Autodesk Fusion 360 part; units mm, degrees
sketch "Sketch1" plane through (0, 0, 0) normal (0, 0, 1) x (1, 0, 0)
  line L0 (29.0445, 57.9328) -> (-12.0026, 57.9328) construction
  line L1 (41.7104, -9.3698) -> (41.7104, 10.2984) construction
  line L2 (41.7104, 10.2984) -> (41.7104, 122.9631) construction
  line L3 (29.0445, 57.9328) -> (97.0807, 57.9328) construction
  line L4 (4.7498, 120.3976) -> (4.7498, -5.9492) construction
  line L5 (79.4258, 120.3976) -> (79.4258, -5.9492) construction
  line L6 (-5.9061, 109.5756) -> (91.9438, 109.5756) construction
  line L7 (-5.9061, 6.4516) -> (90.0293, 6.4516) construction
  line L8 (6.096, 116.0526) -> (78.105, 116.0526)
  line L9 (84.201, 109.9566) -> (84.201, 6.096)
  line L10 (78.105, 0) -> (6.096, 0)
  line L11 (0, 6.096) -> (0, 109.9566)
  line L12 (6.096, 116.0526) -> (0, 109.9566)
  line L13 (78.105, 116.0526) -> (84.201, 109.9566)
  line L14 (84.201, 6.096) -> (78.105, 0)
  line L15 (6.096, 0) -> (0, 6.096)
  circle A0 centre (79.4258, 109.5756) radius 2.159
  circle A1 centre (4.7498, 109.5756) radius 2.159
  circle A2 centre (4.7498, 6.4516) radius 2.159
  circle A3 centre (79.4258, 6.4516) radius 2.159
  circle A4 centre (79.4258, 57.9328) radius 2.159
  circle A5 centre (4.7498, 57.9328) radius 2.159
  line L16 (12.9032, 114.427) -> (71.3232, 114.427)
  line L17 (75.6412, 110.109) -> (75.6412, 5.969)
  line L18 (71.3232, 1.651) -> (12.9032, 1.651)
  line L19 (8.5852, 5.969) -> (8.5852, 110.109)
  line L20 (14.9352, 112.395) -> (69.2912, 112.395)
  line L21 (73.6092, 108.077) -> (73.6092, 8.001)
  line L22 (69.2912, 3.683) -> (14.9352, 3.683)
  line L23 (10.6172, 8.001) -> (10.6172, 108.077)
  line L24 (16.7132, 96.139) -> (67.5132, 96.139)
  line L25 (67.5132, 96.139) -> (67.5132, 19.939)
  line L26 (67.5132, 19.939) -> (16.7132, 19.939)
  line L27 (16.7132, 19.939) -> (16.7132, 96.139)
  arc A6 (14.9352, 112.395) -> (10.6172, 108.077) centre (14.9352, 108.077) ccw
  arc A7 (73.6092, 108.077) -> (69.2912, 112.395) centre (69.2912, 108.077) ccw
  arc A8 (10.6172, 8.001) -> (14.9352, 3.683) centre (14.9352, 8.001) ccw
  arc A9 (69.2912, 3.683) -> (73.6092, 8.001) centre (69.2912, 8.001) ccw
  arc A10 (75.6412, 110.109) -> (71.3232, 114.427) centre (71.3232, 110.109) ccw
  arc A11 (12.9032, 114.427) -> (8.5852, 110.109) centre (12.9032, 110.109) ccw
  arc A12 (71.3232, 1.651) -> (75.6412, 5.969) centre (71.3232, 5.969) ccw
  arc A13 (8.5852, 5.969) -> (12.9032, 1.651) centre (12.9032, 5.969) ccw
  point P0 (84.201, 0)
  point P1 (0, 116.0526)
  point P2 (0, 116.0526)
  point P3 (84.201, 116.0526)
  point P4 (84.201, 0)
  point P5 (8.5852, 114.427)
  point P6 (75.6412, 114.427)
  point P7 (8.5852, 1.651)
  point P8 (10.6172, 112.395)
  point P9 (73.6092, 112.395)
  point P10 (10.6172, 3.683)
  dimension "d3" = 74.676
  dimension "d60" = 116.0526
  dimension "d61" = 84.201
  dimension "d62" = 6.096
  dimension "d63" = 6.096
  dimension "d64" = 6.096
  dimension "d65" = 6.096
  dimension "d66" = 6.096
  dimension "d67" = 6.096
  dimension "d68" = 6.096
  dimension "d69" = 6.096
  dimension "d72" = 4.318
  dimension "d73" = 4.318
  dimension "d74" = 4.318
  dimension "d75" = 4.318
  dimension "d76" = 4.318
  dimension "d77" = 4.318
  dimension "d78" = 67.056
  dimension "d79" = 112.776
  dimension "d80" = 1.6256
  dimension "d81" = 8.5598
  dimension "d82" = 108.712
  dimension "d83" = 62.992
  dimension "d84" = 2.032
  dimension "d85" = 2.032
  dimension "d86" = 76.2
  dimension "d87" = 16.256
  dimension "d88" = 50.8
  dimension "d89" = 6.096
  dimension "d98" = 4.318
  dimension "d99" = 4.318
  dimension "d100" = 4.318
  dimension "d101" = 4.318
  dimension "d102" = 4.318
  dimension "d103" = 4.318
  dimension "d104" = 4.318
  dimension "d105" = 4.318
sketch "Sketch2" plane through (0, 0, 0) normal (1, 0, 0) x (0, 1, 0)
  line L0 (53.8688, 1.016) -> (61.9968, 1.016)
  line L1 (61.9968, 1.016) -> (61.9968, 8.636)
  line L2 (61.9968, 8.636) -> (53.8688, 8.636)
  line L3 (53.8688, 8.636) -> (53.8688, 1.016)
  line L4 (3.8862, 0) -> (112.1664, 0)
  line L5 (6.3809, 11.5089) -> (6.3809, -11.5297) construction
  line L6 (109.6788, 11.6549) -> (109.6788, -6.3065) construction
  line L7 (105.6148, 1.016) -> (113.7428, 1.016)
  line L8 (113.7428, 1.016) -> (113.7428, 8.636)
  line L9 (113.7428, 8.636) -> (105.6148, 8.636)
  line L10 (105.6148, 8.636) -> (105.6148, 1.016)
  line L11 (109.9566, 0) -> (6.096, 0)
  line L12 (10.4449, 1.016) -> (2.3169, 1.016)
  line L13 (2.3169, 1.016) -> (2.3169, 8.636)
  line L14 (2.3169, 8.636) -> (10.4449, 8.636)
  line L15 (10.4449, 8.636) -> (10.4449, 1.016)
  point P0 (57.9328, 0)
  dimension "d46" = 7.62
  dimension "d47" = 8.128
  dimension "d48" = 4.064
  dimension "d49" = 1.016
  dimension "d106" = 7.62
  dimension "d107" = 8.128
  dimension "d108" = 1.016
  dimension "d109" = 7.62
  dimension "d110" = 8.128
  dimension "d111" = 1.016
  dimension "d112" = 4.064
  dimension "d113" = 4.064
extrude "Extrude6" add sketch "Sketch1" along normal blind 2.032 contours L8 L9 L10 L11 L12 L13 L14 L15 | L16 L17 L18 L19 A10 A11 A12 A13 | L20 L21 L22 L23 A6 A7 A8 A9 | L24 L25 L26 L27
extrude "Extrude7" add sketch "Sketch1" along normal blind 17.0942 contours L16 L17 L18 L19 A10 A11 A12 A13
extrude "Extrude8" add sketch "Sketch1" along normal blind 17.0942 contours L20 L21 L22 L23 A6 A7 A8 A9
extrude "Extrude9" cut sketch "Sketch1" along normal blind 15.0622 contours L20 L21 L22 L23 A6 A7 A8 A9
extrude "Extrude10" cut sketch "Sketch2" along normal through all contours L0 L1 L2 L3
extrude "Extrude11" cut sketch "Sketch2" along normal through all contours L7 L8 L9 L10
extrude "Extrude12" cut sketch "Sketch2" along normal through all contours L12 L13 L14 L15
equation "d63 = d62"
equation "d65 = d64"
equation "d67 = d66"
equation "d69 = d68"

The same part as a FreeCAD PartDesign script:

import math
import FreeCAD as App
import Part
import Sketcher

V = App.Vector
Q = App.Units.Quantity


def add_polygon(sketch, points):
    """Adds a closed chain of lines whose ends are joined by coincident constraints."""
    first, n = sketch.GeometryCount, len(points)
    for a, b in zip(points, points[1:] + points[:1]):
        sketch.addGeometry(Part.LineSegment(App.Vector(*a, 0), App.Vector(*b, 0)), False)
    for i in range(n):
        sketch.addConstraint(Sketcher.Constraint("Coincident", first + i, 2, first + (i + 1) % n, 1))

doc = App.newDocument("Part")
body = doc.addObject("PartDesign::Body", "Body")
body.AllowCompound = True

# Sketch on XY plane
sketch1 = body.newObject("Sketcher::SketchObject", "Sketch")
sketch1.AttachmentSupport = (doc.getObject("XY_Plane"), [""])
sketch1.MapMode = "FlatFace"
add_polygon(sketch1, [(78.105, 116.0526), (6.096, 116.0526), (0, 109.9566), (0, 6.096), (6.096, 0), (78.105, 0), (84.201, 6.096), (84.201, 109.9566)])  # lines 0-7
sketch1.addGeometry(Part.Circle(V(4.7498, 6.4516, 0), V(0, 0, 1), 2.159), False)  # 8
sketch1.addGeometry(Part.Circle(V(4.7498, 57.9328, 0), V(0, 0, 1), 2.159), False)  # 9
sketch1.addGeometry(Part.Circle(V(79.4258, 6.4516, 0), V(0, 0, 1), 2.159), False)  # 10
sketch1.addGeometry(Part.Circle(V(79.4258, 57.9328, 0), V(0, 0, 1), 2.159), False)  # 11
sketch1.addGeometry(Part.Circle(V(4.7498, 109.5756, 0), V(0, 0, 1), 2.159), False)  # 12
sketch1.addGeometry(Part.Circle(V(79.4258, 109.5756, 0), V(0, 0, 1), 2.159), False)  # 13
sketch1.addConstraint([
    Sketcher.Constraint("Horizontal", 0),
    Sketcher.Constraint("Vertical", 2),
    Sketcher.Constraint("Horizontal", 4),
    Sketcher.Constraint("Vertical", 6),
    Sketcher.Constraint("Equal", 8, 9),
    Sketcher.Constraint("Equal", 9, 10),
    Sketcher.Constraint("Equal", 10, 11),
    Sketcher.Constraint("Equal", 11, 12),
    Sketcher.Constraint("Equal", 12, 13),
    Sketcher.Constraint("PointOnObject", 1, 2, -2),
    Sketcher.Constraint("PointOnObject", 3, 2, -1),
    Sketcher.Constraint("Perpendicular", 1, 3),
    Sketcher.Constraint("Perpendicular", 3, 5),
    Sketcher.Constraint("Perpendicular", 5, 7),
    Sketcher.Constraint("Horizontal", 8, 3, 10, 3),
    Sketcher.Constraint("Horizontal", 9, 3, 11, 3),
    Sketcher.Constraint("Horizontal", 12, 3, 13, 3),
    Sketcher.Constraint("Horizontal", 2, 2, 5, 2),
    Sketcher.Constraint("Horizontal", 1, 2, 6, 2),
    Sketcher.Constraint("Vertical", 8, 3, 9, 3),
    Sketcher.Constraint("Vertical", 10, 3, 11, 3),
    Sketcher.Constraint("Vertical", 9, 3, 12, 3),
    Sketcher.Constraint("Vertical", 11, 3, 13, 3),
    Sketcher.Constraint("Vertical", 0, 2, 3, 2),
    Sketcher.Constraint("Vertical", 4, 2, 7, 2),
    Sketcher.Constraint("Diameter", 8, Q("0.17 in")),
    Sketcher.Constraint("DistanceX", -1, 1, 0, 2, Q("0.24 in")),
    Sketcher.Constraint("DistanceX", 8, 3, 10, 3, Q("2.94 in")),
    Sketcher.Constraint("DistanceY", -1, 1, 0, 2, Q("4.569 in")),
    Sketcher.Constraint("DistanceX", -1, 1, 5, 2, Q("3.315 in")),
    Sketcher.Constraint("DistanceY", 8, 3, 12, 3, Q("4.06 in")),
    Sketcher.Constraint("DistanceX", -1, 1, 8, 3, Q("0.187 in")),
    Sketcher.Constraint("DistanceY", -1, 1, 8, 3, Q("0.254 in")),
    Sketcher.Constraint("DistanceY", -1, 1, 9, 3, Q("57.9328 mm")),
])
pad1 = body.newObject("PartDesign::Pad", "Pad")
pad1.Profile = sketch1
pad1.Length = Q("0.08 in")

# Sketch on XY plane
sketch2 = body.newObject("Sketcher::SketchObject", "Sketch001")
sketch2.AttachmentSupport = (doc.getObject("XY_Plane"), [""])
sketch2.MapMode = "FlatFace"
sketch2.addGeometry([
    Part.LineSegment(V(71.3232, 114.427, 0), V(12.9032, 114.427, 0)),  # 0
    Part.ArcOfCircle(Part.Circle(V(12.9032, 110.109, 0), V(0, 0, 1), 4.318), math.radians(90), math.radians(180)),  # 1
    Part.LineSegment(V(8.5852, 110.109, 0), V(8.5852, 5.969, 0)),  # 2
    Part.ArcOfCircle(Part.Circle(V(12.9032, 5.969, 0), V(0, 0, 1), 4.318), math.radians(180), math.radians(270)),  # 3
    Part.LineSegment(V(12.9032, 1.651, 0), V(71.3232, 1.651, 0)),  # 4
    Part.ArcOfCircle(Part.Circle(V(71.3232, 5.969, 0), V(0, 0, 1), 4.318), math.radians(-90), math.radians(0)),  # 5
    Part.LineSegment(V(75.6412, 5.969, 0), V(75.6412, 110.109, 0)),  # 6
    Part.ArcOfCircle(Part.Circle(V(71.3232, 110.109, 0), V(0, 0, 1), 4.318), math.radians(0), math.radians(90)),  # 7
    Part.ArcOfCircle(Part.Circle(V(14.9352, 108.077, 0), V(0, 0, 1), 4.318), math.radians(90), math.radians(180)),  # 8
    Part.LineSegment(V(14.9352, 112.395, 0), V(69.2912, 112.395, 0)),  # 9
    Part.ArcOfCircle(Part.Circle(V(69.2912, 108.077, 0), V(0, 0, 1), 4.318), math.radians(0), math.radians(90)),  # 10
    Part.LineSegment(V(73.6092, 108.077, 0), V(73.6092, 8.001, 0)),  # 11
    Part.ArcOfCircle(Part.Circle(V(69.2912, 8.001, 0), V(0, 0, 1), 4.318), math.radians(-90), math.radians(0)),  # 12
    Part.LineSegment(V(69.2912, 3.683, 0), V(14.9352, 3.683, 0)),  # 13
    Part.ArcOfCircle(Part.Circle(V(14.9352, 8.001, 0), V(0, 0, 1), 4.318), math.radians(180), math.radians(270)),  # 14
    Part.LineSegment(V(10.6172, 8.001, 0), V(10.6172, 108.077, 0)),  # 15
], False)
sketch2.addConstraint([
    Sketcher.Constraint("Tangent", 0, 2, 1, 1),
    Sketcher.Constraint("Tangent", 1, 2, 2, 1),
    Sketcher.Constraint("Tangent", 2, 2, 3, 1),
    Sketcher.Constraint("Tangent", 3, 2, 4, 1),
    Sketcher.Constraint("Tangent", 4, 2, 5, 1),
    Sketcher.Constraint("Tangent", 5, 2, 6, 1),
    Sketcher.Constraint("Tangent", 6, 2, 7, 1),
    Sketcher.Constraint("Tangent", 7, 2, 0, 1),
    Sketcher.Constraint("Tangent", 8, 1, 9, 1),
    Sketcher.Constraint("Tangent", 9, 2, 10, 2),
    Sketcher.Constraint("Tangent", 10, 1, 11, 1),
    Sketcher.Constraint("Tangent", 11, 2, 12, 2),
    Sketcher.Constraint("Tangent", 12, 1, 13, 1),
    Sketcher.Constraint("Tangent", 13, 2, 14, 2),
    Sketcher.Constraint("Tangent", 14, 1, 15, 1),
    Sketcher.Constraint("Tangent", 15, 2, 8, 2),
    Sketcher.Constraint("Horizontal", 0),
    Sketcher.Constraint("Vertical", 2),
    Sketcher.Constraint("Horizontal", 4),
    Sketcher.Constraint("Vertical", 6),
    Sketcher.Constraint("Horizontal", 9),
    Sketcher.Constraint("Vertical", 11),
    Sketcher.Constraint("Horizontal", 13),
    Sketcher.Constraint("Vertical", 15),
    Sketcher.Constraint("Equal", 1, 3),
    Sketcher.Constraint("Equal", 3, 5),
    Sketcher.Constraint("Equal", 5, 7),
    Sketcher.Constraint("Equal", 7, 8),
    Sketcher.Constraint("Equal", 8, 10),
    Sketcher.Constraint("Equal", 10, 12),
    Sketcher.Constraint("Equal", 12, 14),
    Sketcher.Constraint("Radius", 1, Q("0.17 in")),
    Sketcher.Constraint("DistanceX", 1, 3, 8, 3, Q("0.08 in")),
    Sketcher.Constraint("DistanceY", 8, 3, 1, 3, Q("0.08 in")),
    Sketcher.Constraint("DistanceX", 10, 3, 7, 3, Q("0.08 in")),
    Sketcher.Constraint("DistanceY", 5, 3, 12, 3, Q("0.08 in")),
    Sketcher.Constraint("DistanceX", 0, 2, 0, 1, Q("2.3 in")),
    Sketcher.Constraint("DistanceY", 2, 2, 2, 1, Q("4.1 in")),
    Sketcher.Constraint("DistanceX", -1, 1, 1, 3, Q("0.508 in")),
    Sketcher.Constraint("DistanceY", -1, 1, 1, 3, Q("4.335 in")),
])
pad2 = body.newObject("PartDesign::Pad", "Pad001")
pad2.Profile = sketch2
pad2.Length = Q("0.673 in")

# Sketch on XY plane
sketch3 = body.newObject("Sketcher::SketchObject", "Sketch002")
sketch3.AttachmentSupport = (doc.getObject("XY_Plane"), [""])
sketch3.MapMode = "FlatFace"
sketch3.addGeometry(Part.LineSegment(V(69.2912, 112.395, 0), V(14.9352, 112.395, 0)), False)  # 0
sketch3.addGeometry(Part.ArcOfCircle(Part.Circle(V(14.9352, 108.077, 0), V(0, 0, 1), 4.318), math.radians(90), math.radians(180)), False)  # 1
sketch3.addGeometry(Part.LineSegment(V(10.6172, 108.077, 0), V(10.6172, 8.001, 0)), False)  # 2
sketch3.addGeometry(Part.ArcOfCircle(Part.Circle(V(14.9352, 8.001, 0), V(0, 0, 1), 4.318), math.radians(180), math.radians(270)), False)  # 3
sketch3.addGeometry(Part.LineSegment(V(14.9352, 3.683, 0), V(69.2912, 3.683, 0)), False)  # 4
sketch3.addGeometry(Part.ArcOfCircle(Part.Circle(V(69.2912, 8.001, 0), V(0, 0, 1), 4.318), math.radians(-90), math.radians(0)), False)  # 5
sketch3.addGeometry(Part.LineSegment(V(73.6092, 8.001, 0), V(73.6092, 108.077, 0)), False)  # 6
sketch3.addGeometry(Part.ArcOfCircle(Part.Circle(V(69.2912, 108.077, 0), V(0, 0, 1), 4.318), math.radians(0), math.radians(90)), False)  # 7
add_polygon(sketch3, [(16.7132, 19.939), (16.7132, 96.139), (67.5132, 96.139), (67.5132, 19.939)])  # lines 8-11
sketch3.addConstraint([
    Sketcher.Constraint("Tangent", 0, 2, 1, 1),
    Sketcher.Constraint("Tangent", 1, 2, 2, 1),
    Sketcher.Constraint("Tangent", 2, 2, 3, 1),
    Sketcher.Constraint("Tangent", 3, 2, 4, 1),
    Sketcher.Constraint("Tangent", 4, 2, 5, 1),
    Sketcher.Constraint("Tangent", 5, 2, 6, 1),
    Sketcher.Constraint("Tangent", 6, 2, 7, 1),
    Sketcher.Constraint("Tangent", 7, 2, 0, 1),
    Sketcher.Constraint("Horizontal", 0),
    Sketcher.Constraint("Vertical", 2),
    Sketcher.Constraint("Horizontal", 4),
    Sketcher.Constraint("Vertical", 6),
    Sketcher.Constraint("Vertical", 8),
    Sketcher.Constraint("Horizontal", 9),
    Sketcher.Constraint("Vertical", 10),
    Sketcher.Constraint("Horizontal", 11),
    Sketcher.Constraint("Equal", 1, 3),
    Sketcher.Constraint("Equal", 3, 5),
    Sketcher.Constraint("Equal", 5, 7),
    Sketcher.Constraint("DistanceX", 9, 1, 9, 2, Q("2 in")),
    Sketcher.Constraint("DistanceY", 8, 1, 8, 2, Q("3 in")),
    Sketcher.Constraint("Radius", 1, Q("0.17 in")),
    Sketcher.Constraint("DistanceX", 2, 2, 5, 2, Q("2.48 in")),
    Sketcher.Constraint("DistanceX", 1, 2, 8, 2, Q("0.24 in")),
    Sketcher.Constraint("DistanceY", 8, 2, 0, 2, Q("0.64 in")),
    Sketcher.Constraint("DistanceY", 4, 2, 10, 2, Q("0.64 in")),
    Sketcher.Constraint("DistanceX", -1, 1, 1, 3, Q("0.588 in")),
    Sketcher.Constraint("DistanceY", -1, 1, 1, 3, Q("4.255 in")),
])
pad3 = body.newObject("PartDesign::Pad", "Pad002")
pad3.Profile = sketch3
pad3.Length = Q("0.673 in")

# Sketch on XY plane
sketch4 = body.newObject("Sketcher::SketchObject", "Sketch003")
sketch4.AttachmentSupport = (doc.getObject("XY_Plane"), [""])
sketch4.MapMode = "FlatFace"
sketch4.addGeometry(Part.LineSegment(V(69.2912, 112.395, 0), V(14.9352, 112.395, 0)), False)  # 0
sketch4.addGeometry(Part.ArcOfCircle(Part.Circle(V(14.9352, 108.077, 0), V(0, 0, 1), 4.318), math.radians(90), math.radians(180)), False)  # 1
sketch4.addGeometry(Part.LineSegment(V(10.6172, 108.077, 0), V(10.6172, 8.001, 0)), False)  # 2
sketch4.addGeometry(Part.ArcOfCircle(Part.Circle(V(14.9352, 8.001, 0), V(0, 0, 1), 4.318), math.radians(180), math.radians(270)), False)  # 3
sketch4.addGeometry(Part.LineSegment(V(14.9352, 3.683, 0), V(69.2912, 3.683, 0)), False)  # 4
sketch4.addGeometry(Part.ArcOfCircle(Part.Circle(V(69.2912, 8.001, 0), V(0, 0, 1), 4.318), math.radians(-90), math.radians(0)), False)  # 5
sketch4.addGeometry(Part.LineSegment(V(73.6092, 8.001, 0), V(73.6092, 108.077, 0)), False)  # 6
sketch4.addGeometry(Part.ArcOfCircle(Part.Circle(V(69.2912, 108.077, 0), V(0, 0, 1), 4.318), math.radians(0), math.radians(90)), False)  # 7
add_polygon(sketch4, [(16.7132, 19.939), (16.7132, 96.139), (67.5132, 96.139), (67.5132, 19.939)])  # lines 8-11
sketch4.addConstraint([
    Sketcher.Constraint("Tangent", 0, 2, 1, 1),
    Sketcher.Constraint("Tangent", 1, 2, 2, 1),
    Sketcher.Constraint("Tangent", 2, 2, 3, 1),
    Sketcher.Constraint("Tangent", 3, 2, 4, 1),
    Sketcher.Constraint("Tangent", 4, 2, 5, 1),
    Sketcher.Constraint("Tangent", 5, 2, 6, 1),
    Sketcher.Constraint("Tangent", 6, 2, 7, 1),
    Sketcher.Constraint("Tangent", 7, 2, 0, 1),
    Sketcher.Constraint("Horizontal", 0),
    Sketcher.Constraint("Vertical", 2),
    Sketcher.Constraint("Horizontal", 4),
    Sketcher.Constraint("Vertical", 6),
    Sketcher.Constraint("Vertical", 8),
    Sketcher.Constraint("Horizontal", 9),
    Sketcher.Constraint("Vertical", 10),
    Sketcher.Constraint("Horizontal", 11),
    Sketcher.Constraint("Equal", 1, 3),
    Sketcher.Constraint("Equal", 3, 5),
    Sketcher.Constraint("Equal", 5, 7),
    Sketcher.Constraint("DistanceX", 9, 1, 9, 2, Q("2 in")),
    Sketcher.Constraint("DistanceY", 8, 1, 8, 2, Q("3 in")),
    Sketcher.Constraint("Radius", 1, Q("0.17 in")),
    Sketcher.Constraint("DistanceX", 2, 2, 5, 2, Q("2.48 in")),
    Sketcher.Constraint("DistanceX", 1, 2, 8, 2, Q("0.24 in")),
    Sketcher.Constraint("DistanceY", 8, 2, 0, 2, Q("0.64 in")),
    Sketcher.Constraint("DistanceY", 4, 2, 10, 2, Q("0.64 in")),
    Sketcher.Constraint("DistanceX", -1, 1, 1, 3, Q("0.588 in")),
    Sketcher.Constraint("DistanceY", -1, 1, 1, 3, Q("4.255 in")),
])
pocket1 = body.newObject("PartDesign::Pocket", "Pocket")
pocket1.Profile = sketch4
pocket1.Length = Q("0.593 in")
pocket1.Reversed = True

# Sketch on YZ plane
sketch5 = body.newObject("Sketcher::SketchObject", "Sketch004")
sketch5.AttachmentSupport = (doc.getObject("YZ_Plane"), [""])
sketch5.MapMode = "FlatFace"
add_polygon(sketch5, [(53.8688, 8.636), (53.8688, 1.016), (61.9968, 1.016), (61.9968, 8.636)])  # lines 0-3
sketch5.addConstraint([
    Sketcher.Constraint("Vertical", 0),
    Sketcher.Constraint("Horizontal", 1),
    Sketcher.Constraint("Vertical", 2),
    Sketcher.Constraint("Horizontal", 3),
    Sketcher.Constraint("DistanceY", 0, 2, 0, 1, Q("0.3 in")),
    Sketcher.Constraint("DistanceX", 1, 1, 1, 2, Q("0.32 in")),
    Sketcher.Constraint("DistanceY", -1, 1, 0, 2, Q("0.04 in")),
    Sketcher.Constraint("DistanceX", -1, 1, 0, 2, Q("53.8688 mm")),
])
pocket2 = body.newObject("PartDesign::Pocket", "Pocket001")
pocket2.Profile = sketch5
pocket2.Type = "ThroughAll"
pocket2.Reversed = True

# Sketch on YZ plane
sketch6 = body.newObject("Sketcher::SketchObject", "Sketch005")
sketch6.AttachmentSupport = (doc.getObject("YZ_Plane"), [""])
sketch6.MapMode = "FlatFace"
add_polygon(sketch6, [(105.6148, 8.636), (105.6148, 1.016), (113.7428, 1.016), (113.7428, 8.636)])  # lines 0-3
sketch6.addConstraint([
    Sketcher.Constraint("Vertical", 0),
    Sketcher.Constraint("Horizontal", 1),
    Sketcher.Constraint("Vertical", 2),
    Sketcher.Constraint("Horizontal", 3),
    Sketcher.Constraint("DistanceY", 0, 2, 0, 1, Q("0.3 in")),
    Sketcher.Constraint("DistanceX", 1, 1, 1, 2, Q("0.32 in")),
    Sketcher.Constraint("DistanceY", -1, 1, 0, 2, Q("0.04 in")),
    Sketcher.Constraint("DistanceX", -1, 1, 0, 2, Q("105.6148 mm")),
])
pocket3 = body.newObject("PartDesign::Pocket", "Pocket002")
pocket3.Profile = sketch6
pocket3.Type = "ThroughAll"
pocket3.Reversed = True

# Sketch on YZ plane
sketch7 = body.newObject("Sketcher::SketchObject", "Sketch006")
sketch7.AttachmentSupport = (doc.getObject("YZ_Plane"), [""])
sketch7.MapMode = "FlatFace"
add_polygon(sketch7, [(2.3169, 1.016), (10.4449, 1.016), (10.4449, 8.636), (2.3169, 8.636)])  # lines 0-3
sketch7.addConstraint([
    Sketcher.Constraint("Horizontal", 0),
    Sketcher.Constraint("Vertical", 1),
    Sketcher.Constraint("Horizontal", 2),
    Sketcher.Constraint("Vertical", 3),
    Sketcher.Constraint("DistanceY", 1, 1, 1, 2, Q("0.3 in")),
    Sketcher.Constraint("DistanceX", 0, 1, 0, 2, Q("0.32 in")),
    Sketcher.Constraint("DistanceY", -1, 1, 0, 2, Q("0.04 in")),
    Sketcher.Constraint("DistanceX", -1, 1, 0, 2, Q("10.445 mm")),
])
pocket4 = body.newObject("PartDesign::Pocket", "Pocket003")
pocket4.Profile = sketch7
pocket4.Type = "ThroughAll"
pocket4.Reversed = True

doc.recompute()
